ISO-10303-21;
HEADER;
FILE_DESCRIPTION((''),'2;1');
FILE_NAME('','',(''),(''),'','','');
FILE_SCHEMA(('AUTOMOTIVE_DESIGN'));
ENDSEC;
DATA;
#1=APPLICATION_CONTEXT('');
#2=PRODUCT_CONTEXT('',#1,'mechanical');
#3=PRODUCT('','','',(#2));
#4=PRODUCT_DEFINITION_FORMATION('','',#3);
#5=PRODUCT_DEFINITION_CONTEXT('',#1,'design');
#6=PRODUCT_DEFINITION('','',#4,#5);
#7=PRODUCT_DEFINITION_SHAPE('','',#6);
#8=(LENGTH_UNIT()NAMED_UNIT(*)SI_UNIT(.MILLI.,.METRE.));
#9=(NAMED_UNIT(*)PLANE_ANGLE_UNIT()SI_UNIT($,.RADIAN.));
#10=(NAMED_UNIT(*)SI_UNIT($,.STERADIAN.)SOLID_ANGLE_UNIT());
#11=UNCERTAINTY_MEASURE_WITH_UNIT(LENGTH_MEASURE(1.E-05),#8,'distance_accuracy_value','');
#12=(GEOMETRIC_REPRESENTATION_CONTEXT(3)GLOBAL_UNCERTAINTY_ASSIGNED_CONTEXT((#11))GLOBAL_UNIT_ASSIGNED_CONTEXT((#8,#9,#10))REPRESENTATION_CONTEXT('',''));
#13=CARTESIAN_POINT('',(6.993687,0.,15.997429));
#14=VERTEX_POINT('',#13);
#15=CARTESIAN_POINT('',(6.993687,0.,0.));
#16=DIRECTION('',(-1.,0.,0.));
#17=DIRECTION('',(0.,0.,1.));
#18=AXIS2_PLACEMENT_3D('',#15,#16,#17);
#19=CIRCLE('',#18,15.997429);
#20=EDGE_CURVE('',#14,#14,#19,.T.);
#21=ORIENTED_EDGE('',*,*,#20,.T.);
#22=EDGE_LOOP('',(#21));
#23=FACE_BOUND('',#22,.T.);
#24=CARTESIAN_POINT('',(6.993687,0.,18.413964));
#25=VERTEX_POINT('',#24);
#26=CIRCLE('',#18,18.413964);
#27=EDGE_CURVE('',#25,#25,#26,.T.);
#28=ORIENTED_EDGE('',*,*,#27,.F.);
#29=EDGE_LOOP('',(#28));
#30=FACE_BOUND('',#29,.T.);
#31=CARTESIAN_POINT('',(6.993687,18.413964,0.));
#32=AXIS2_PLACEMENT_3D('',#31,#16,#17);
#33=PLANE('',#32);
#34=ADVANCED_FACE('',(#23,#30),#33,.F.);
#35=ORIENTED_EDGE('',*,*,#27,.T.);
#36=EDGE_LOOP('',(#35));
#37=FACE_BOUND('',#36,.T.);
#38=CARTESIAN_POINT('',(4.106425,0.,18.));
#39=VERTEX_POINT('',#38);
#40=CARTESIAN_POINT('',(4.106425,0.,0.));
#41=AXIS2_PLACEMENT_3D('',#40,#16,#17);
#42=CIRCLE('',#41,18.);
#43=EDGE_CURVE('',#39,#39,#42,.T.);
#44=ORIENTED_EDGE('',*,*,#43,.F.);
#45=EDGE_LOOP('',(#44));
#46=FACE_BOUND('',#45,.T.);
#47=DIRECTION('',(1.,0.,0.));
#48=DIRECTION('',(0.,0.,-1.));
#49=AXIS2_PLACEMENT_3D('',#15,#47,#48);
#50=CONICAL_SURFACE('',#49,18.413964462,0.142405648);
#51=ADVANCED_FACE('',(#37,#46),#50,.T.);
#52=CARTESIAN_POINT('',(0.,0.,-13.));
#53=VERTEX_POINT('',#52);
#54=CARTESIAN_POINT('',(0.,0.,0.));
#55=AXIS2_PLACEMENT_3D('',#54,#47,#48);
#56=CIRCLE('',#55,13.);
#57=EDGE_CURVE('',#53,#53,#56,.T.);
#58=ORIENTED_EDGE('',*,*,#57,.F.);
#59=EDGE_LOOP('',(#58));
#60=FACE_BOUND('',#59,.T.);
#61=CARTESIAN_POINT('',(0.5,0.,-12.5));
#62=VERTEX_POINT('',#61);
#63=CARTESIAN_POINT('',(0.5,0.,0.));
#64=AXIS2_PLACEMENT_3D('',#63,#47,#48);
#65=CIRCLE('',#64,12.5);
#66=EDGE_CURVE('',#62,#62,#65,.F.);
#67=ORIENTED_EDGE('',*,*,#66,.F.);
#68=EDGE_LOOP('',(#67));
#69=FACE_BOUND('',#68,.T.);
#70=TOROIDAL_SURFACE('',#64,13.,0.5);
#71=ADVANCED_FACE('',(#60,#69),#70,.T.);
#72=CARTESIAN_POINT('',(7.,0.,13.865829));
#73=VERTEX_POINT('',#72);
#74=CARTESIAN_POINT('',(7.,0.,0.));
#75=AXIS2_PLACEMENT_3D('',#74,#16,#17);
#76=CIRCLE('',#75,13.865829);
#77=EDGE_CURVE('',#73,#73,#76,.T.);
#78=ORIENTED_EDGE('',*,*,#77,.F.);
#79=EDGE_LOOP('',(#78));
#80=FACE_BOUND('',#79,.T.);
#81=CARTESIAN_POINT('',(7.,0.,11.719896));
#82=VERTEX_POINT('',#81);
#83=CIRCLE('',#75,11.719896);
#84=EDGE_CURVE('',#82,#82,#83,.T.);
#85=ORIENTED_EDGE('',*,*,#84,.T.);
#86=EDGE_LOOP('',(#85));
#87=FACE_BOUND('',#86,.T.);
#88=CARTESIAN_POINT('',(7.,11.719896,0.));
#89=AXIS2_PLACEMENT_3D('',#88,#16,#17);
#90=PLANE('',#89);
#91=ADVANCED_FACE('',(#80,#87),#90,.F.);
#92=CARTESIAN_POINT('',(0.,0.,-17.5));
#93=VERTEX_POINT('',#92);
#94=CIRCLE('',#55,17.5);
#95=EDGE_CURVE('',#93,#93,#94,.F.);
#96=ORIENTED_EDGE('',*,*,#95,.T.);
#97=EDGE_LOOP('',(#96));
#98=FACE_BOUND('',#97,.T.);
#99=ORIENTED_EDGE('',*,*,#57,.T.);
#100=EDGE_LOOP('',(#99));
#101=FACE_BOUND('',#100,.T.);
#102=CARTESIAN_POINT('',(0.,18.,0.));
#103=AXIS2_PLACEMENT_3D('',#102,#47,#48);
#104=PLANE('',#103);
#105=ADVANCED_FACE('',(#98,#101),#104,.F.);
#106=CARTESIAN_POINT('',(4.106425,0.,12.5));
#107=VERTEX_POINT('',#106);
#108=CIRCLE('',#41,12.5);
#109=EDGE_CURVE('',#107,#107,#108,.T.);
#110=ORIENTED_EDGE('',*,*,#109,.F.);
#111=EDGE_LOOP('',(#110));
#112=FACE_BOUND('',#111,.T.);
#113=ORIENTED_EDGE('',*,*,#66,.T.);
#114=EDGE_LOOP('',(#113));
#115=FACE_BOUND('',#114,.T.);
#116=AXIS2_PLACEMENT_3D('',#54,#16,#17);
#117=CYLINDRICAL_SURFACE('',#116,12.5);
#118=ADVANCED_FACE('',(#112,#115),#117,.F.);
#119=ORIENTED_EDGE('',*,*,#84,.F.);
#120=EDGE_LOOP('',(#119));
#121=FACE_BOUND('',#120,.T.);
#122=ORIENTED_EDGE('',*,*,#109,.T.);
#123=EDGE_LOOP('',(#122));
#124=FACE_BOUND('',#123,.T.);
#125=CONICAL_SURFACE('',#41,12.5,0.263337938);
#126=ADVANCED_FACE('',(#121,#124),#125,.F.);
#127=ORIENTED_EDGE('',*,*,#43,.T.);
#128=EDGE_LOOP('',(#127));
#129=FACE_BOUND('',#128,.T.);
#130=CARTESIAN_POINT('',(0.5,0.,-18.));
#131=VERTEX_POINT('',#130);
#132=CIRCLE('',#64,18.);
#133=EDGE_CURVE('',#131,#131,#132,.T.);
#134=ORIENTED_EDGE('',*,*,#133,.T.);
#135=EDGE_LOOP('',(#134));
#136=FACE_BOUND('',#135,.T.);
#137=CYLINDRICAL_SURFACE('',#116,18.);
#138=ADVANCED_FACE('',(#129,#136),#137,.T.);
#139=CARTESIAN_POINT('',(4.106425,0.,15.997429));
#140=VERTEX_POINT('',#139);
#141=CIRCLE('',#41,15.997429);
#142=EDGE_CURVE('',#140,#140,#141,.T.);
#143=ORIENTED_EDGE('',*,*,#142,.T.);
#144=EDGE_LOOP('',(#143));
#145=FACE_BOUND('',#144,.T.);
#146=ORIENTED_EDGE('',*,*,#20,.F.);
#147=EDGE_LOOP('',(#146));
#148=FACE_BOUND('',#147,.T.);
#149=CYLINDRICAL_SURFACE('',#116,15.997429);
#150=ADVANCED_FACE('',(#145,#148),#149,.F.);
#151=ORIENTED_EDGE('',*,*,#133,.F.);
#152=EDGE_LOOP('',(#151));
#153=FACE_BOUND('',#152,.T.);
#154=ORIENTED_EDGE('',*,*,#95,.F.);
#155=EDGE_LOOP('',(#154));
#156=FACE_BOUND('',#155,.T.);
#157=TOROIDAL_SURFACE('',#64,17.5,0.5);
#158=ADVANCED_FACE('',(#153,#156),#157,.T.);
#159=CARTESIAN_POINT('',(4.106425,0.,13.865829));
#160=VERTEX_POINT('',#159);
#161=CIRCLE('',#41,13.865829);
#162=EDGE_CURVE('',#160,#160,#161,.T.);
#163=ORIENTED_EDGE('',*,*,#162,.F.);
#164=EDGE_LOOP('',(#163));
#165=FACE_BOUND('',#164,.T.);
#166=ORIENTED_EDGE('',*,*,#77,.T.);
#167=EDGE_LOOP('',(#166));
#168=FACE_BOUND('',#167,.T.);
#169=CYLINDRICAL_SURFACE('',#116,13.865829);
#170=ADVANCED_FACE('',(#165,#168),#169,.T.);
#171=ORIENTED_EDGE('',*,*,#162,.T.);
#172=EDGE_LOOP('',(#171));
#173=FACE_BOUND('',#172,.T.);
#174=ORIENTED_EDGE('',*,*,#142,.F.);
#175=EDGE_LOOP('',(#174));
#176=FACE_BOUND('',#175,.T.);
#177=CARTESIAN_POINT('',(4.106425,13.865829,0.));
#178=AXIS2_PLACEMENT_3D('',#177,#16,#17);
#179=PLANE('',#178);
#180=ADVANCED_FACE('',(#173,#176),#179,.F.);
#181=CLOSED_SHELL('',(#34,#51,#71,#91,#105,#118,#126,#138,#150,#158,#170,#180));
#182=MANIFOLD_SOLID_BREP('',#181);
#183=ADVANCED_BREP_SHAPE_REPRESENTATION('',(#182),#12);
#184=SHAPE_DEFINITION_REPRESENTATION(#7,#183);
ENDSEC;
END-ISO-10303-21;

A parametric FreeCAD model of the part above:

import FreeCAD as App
import Part
import Sketcher

V = App.Vector


def edges_at(feature, points):
    """Names of the edges that pass closest to the given points."""
    edges = feature.Shape.Edges
    near = lambda p: min(range(len(edges)), key=lambda i: edges[i].distToShape(Part.Vertex(*p))[0])
    return sorted({f"Edge{near(p) + 1}" for p in points})

doc = App.newDocument("Part")
body = doc.addObject("PartDesign::Body", "Body")

# Sketch on XY plane
sketch1 = body.newObject("Sketcher::SketchObject", "Sketch")
sketch1.AttachmentSupport = (doc.getObject("XY_Plane"), [""])
sketch1.MapMode = "FlatFace"
sketch1.addGeometry(Part.LineSegment(V(0, 18, 0), V(0, 12.5, 0)), False)
sketch1.addGeometry(Part.LineSegment(V(0, 12.5, 0), V(4.106425, 12.5, 0)), False)
sketch1.addGeometry(Part.LineSegment(V(4.106425, 12.5, 0), V(7, 11.719896, 0)), False)
sketch1.addGeometry(Part.LineSegment(V(7, 11.719896, 0), V(7, 13.865829, 0)), False)
sketch1.addGeometry(Part.LineSegment(V(7, 13.865829, 0), V(4.106425, 13.865829, 0)), False)
sketch1.addGeometry(Part.LineSegment(V(4.106425, 13.865829, 0), V(4.106425, 15.997429, 0)), False)
sketch1.addGeometry(Part.LineSegment(V(4.106425, 15.997429, 0), V(6.993687, 15.997429, 0)), False)
sketch1.addGeometry(Part.LineSegment(V(6.993687, 15.997429, 0), V(6.993687, 18.413964, 0)), False)
sketch1.addGeometry(Part.LineSegment(V(6.993687, 18.413964, 0), V(4.106425, 18, 0)), False)
sketch1.addGeometry(Part.LineSegment(V(4.106425, 18, 0), V(0, 18, 0)), False)
sketch1.addConstraint(Sketcher.Constraint("Coincident", 0, 2, 1, 1))
sketch1.addConstraint(Sketcher.Constraint("Coincident", 1, 2, 2, 1))
sketch1.addConstraint(Sketcher.Constraint("Coincident", 2, 2, 3, 1))
sketch1.addConstraint(Sketcher.Constraint("Coincident", 3, 2, 4, 1))
sketch1.addConstraint(Sketcher.Constraint("Coincident", 4, 2, 5, 1))
sketch1.addConstraint(Sketcher.Constraint("Coincident", 5, 2, 6, 1))
sketch1.addConstraint(Sketcher.Constraint("Coincident", 6, 2, 7, 1))
sketch1.addConstraint(Sketcher.Constraint("Coincident", 7, 2, 8, 1))
sketch1.addConstraint(Sketcher.Constraint("Coincident", 8, 2, 9, 1))
sketch1.addConstraint(Sketcher.Constraint("Coincident", 9, 2, 0, 1))
sketch1.addConstraint(Sketcher.Constraint("Vertical", 0))
sketch1.addConstraint(Sketcher.Constraint("Horizontal", 1))
sketch1.addConstraint(Sketcher.Constraint("Vertical", 3))
sketch1.addConstraint(Sketcher.Constraint("Horizontal", 4))
sketch1.addConstraint(Sketcher.Constraint("Vertical", 5))
sketch1.addConstraint(Sketcher.Constraint("Horizontal", 6))
sketch1.addConstraint(Sketcher.Constraint("Vertical", 7))
sketch1.addConstraint(Sketcher.Constraint("Horizontal", 9))
sketch1.addConstraint(Sketcher.Constraint("PointOnObject", 0, 2, -2))
sketch1.addConstraint(Sketcher.Constraint("Vertical", 1, 2, 4, 2))
sketch1.addConstraint(Sketcher.Constraint("Vertical", 5, 2, 8, 2))
sketch1.addConstraint(Sketcher.Constraint("DistanceY", 0, 2, 0, 1, 5.5))
sketch1.addConstraint(Sketcher.Constraint("DistanceX", -1, 1, 2, 2, 7.0))
sketch1.addConstraint(Sketcher.Constraint("DistanceY", -1, 1, 8, 2, 18.0))
sketch1.addConstraint(Sketcher.Constraint("DistanceY", 5, 1, 5, 2, 2.1316))
sketch1.addConstraint(Sketcher.Constraint("DistanceX", 6, 1, 6, 2, 2.887262))
sketch1.addConstraint(Sketcher.Constraint("DistanceX", 1, 1, 1, 2, 4.106425))
sketch1.addConstraint(Sketcher.Constraint("DistanceY", 3, 1, 3, 2, 2.145934))
sketch1.addConstraint(Sketcher.Constraint("DistanceY", 7, 1, 7, 2, 2.416536))
sketch1.addConstraint(Sketcher.Constraint("DistanceY", -1, 1, 3, 2, 13.865829))
revolution = body.newObject("PartDesign::Revolution", "Revolution")
revolution.Profile = sketch1
revolution.ReferenceAxis = (sketch1, ["H_Axis"])
revolution.Angle = 360
doc.recompute()

fillet = body.newObject("PartDesign::Fillet", "Fillet")
fillet.Base = (revolution, edges_at(revolution, [(0, 0, -18)]))
fillet.Radius = 0.5
doc.recompute()

fillet2 = body.newObject("PartDesign::Fillet", "Fillet001")
fillet2.Base = (fillet, edges_at(fillet, [(0, 0, -12.5)]))
fillet2.Radius = 0.5

doc.recompute()
